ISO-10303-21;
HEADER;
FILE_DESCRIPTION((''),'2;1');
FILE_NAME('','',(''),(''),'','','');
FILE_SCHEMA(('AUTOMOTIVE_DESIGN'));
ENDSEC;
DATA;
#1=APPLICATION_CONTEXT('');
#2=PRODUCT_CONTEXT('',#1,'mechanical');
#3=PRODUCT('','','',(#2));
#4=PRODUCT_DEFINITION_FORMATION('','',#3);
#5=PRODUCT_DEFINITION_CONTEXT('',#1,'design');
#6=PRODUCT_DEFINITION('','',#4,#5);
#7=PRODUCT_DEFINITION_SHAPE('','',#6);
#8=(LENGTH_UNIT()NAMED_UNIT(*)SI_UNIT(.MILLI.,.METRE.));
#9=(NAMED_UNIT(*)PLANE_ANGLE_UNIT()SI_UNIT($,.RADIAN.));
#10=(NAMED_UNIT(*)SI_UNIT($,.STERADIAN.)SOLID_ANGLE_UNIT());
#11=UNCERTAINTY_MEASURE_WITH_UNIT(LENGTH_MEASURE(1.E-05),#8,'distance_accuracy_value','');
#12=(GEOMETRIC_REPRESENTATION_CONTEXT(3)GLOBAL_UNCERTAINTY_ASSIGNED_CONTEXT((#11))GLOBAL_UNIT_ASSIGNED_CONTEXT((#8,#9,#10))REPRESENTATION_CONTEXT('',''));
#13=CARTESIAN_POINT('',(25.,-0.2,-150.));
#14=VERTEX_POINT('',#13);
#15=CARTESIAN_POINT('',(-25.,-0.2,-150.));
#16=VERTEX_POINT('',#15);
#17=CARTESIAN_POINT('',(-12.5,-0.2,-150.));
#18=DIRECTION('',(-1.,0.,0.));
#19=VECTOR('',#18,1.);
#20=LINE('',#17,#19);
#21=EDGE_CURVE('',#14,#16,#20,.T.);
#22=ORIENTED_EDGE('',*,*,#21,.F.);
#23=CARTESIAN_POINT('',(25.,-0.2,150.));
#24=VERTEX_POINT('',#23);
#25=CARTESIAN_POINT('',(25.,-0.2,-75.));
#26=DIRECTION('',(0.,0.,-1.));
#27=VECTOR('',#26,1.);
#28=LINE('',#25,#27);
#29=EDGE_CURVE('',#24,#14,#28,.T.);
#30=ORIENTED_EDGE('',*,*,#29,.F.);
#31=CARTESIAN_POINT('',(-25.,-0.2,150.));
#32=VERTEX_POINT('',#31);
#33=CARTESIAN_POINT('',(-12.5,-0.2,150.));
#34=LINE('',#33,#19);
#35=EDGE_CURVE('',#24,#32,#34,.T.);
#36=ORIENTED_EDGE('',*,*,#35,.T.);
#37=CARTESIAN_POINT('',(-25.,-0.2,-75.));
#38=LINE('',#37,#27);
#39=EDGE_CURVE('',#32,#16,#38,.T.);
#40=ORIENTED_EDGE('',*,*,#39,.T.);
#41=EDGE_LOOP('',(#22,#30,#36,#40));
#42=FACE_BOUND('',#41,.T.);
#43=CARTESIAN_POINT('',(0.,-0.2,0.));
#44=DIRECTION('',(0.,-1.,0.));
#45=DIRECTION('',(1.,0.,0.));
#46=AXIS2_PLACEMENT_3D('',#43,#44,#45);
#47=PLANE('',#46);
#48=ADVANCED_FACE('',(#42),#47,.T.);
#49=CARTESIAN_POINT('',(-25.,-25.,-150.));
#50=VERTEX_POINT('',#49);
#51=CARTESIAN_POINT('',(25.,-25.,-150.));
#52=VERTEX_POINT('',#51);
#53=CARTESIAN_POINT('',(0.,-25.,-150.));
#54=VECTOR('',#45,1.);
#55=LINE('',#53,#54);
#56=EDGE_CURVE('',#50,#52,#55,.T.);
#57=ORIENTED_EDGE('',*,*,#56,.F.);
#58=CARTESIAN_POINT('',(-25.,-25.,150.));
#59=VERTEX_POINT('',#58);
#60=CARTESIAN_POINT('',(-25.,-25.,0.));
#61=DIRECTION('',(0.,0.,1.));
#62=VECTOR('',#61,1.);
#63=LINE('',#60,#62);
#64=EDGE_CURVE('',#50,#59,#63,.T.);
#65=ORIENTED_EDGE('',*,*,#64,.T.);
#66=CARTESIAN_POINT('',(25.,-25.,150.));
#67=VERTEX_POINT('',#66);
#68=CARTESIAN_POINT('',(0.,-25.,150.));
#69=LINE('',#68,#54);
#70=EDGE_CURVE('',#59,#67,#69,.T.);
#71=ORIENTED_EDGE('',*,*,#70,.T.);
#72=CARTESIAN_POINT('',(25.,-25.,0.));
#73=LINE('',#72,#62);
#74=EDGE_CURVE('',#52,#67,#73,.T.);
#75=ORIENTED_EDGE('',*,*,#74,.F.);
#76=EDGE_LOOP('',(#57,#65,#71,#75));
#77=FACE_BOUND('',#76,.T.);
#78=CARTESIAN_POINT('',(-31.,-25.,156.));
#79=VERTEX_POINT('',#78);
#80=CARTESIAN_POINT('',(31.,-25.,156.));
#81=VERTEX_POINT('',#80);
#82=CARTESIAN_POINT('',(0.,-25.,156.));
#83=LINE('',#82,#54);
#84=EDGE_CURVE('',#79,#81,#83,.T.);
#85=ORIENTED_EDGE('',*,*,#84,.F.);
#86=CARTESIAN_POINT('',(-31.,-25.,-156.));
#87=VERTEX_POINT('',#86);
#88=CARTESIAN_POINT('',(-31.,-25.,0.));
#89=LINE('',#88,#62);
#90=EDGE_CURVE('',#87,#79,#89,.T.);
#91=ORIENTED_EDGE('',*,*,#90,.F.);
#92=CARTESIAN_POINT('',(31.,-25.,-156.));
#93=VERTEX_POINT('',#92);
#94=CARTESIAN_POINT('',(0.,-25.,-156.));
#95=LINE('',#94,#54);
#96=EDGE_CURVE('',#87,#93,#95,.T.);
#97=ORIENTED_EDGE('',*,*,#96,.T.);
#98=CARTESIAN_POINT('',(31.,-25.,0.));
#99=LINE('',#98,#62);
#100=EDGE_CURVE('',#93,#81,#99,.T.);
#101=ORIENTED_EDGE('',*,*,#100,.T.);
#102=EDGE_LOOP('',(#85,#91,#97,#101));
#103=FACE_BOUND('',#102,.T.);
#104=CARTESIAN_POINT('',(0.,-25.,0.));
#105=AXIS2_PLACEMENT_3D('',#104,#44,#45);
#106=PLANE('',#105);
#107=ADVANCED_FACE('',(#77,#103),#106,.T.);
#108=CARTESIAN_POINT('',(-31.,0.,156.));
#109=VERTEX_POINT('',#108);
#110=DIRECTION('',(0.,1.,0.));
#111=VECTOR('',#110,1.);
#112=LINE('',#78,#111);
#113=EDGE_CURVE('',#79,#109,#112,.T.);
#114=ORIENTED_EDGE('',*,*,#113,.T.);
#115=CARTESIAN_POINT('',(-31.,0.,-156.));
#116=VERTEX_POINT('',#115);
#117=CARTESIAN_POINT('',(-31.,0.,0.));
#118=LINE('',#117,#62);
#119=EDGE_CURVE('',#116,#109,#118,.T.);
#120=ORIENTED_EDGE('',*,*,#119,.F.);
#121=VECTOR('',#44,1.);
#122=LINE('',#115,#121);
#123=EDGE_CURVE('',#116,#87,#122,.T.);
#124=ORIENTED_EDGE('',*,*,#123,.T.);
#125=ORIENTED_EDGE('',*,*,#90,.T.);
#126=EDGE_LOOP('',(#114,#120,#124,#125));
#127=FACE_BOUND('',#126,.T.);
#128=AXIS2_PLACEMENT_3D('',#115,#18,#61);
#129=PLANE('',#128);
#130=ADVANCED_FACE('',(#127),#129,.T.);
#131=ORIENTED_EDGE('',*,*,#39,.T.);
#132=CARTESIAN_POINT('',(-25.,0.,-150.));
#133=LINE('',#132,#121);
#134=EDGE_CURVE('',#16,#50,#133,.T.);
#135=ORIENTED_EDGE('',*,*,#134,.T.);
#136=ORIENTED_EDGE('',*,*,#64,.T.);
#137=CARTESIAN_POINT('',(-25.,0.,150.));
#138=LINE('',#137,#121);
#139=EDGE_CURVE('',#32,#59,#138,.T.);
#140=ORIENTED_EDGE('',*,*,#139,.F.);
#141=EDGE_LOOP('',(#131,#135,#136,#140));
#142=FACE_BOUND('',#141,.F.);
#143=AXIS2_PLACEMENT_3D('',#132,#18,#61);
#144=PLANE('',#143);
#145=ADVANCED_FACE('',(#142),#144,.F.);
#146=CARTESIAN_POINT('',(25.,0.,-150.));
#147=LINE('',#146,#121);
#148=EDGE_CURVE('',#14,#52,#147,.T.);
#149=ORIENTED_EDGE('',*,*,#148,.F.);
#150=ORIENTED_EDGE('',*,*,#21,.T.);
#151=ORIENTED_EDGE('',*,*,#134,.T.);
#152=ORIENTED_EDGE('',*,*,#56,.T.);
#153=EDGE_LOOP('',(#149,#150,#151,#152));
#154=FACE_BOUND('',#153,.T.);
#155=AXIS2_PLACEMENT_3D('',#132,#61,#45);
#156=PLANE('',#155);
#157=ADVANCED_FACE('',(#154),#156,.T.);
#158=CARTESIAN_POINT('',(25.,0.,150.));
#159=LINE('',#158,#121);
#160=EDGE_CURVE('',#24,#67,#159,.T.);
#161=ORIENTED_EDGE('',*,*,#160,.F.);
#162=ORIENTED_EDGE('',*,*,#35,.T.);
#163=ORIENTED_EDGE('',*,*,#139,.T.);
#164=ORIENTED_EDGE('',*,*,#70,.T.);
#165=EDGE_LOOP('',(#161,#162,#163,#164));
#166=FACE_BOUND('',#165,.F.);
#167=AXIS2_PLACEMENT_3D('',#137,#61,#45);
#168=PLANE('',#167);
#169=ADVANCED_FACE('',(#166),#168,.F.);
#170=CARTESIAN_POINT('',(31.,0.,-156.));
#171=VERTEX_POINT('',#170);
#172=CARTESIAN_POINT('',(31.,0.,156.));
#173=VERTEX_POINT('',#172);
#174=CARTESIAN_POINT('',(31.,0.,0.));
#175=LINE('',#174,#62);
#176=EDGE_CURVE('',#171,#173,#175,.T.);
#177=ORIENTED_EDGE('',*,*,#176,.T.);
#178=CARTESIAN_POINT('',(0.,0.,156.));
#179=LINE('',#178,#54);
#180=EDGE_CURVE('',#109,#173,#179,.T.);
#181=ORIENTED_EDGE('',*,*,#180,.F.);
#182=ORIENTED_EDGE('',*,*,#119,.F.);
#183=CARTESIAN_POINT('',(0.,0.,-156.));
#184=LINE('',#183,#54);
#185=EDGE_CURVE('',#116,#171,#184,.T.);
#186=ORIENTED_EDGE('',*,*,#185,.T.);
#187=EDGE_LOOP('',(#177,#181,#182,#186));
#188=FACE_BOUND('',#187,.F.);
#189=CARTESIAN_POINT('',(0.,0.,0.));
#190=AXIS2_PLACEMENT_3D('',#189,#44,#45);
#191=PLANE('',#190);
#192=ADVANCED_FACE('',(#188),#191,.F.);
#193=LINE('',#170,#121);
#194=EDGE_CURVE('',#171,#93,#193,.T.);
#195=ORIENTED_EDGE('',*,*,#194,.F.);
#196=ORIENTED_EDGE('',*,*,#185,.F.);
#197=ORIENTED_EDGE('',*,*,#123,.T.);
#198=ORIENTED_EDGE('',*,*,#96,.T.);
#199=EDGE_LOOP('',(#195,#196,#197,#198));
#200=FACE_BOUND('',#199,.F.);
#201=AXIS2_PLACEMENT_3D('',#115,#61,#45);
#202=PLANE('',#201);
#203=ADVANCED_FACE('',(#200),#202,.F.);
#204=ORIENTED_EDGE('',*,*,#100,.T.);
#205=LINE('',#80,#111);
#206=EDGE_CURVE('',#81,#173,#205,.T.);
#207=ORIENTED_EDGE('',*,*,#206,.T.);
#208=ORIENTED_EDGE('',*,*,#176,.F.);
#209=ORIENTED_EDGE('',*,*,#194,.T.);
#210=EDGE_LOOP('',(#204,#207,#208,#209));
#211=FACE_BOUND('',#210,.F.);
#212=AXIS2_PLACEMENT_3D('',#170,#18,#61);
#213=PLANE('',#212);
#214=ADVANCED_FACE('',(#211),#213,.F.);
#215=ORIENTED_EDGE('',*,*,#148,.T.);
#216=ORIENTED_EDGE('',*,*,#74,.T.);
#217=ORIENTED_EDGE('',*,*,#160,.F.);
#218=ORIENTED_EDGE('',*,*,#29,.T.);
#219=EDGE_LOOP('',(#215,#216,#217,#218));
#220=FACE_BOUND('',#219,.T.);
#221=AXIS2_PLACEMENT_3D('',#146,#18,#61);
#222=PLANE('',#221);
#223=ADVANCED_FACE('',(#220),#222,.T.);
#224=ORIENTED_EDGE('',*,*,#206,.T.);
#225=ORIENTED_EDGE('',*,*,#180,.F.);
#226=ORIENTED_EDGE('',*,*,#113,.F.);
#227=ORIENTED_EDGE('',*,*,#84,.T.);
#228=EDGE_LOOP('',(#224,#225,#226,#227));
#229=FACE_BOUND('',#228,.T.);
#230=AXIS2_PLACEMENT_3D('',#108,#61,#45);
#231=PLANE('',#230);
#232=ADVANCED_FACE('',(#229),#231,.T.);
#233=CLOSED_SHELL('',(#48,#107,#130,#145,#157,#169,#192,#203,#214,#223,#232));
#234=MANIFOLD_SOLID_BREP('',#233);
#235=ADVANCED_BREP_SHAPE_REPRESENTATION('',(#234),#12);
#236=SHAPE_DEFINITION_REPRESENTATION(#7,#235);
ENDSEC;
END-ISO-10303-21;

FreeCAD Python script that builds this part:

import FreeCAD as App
import Part
import Sketcher

V = App.Vector
Q = App.Units.Quantity


def add_polygon(sketch, points):
    """Adds a closed chain of lines whose ends are joined by coincident constraints."""
    first, n = sketch.GeometryCount, len(points)
    for a, b in zip(points, points[1:] + points[:1]):
        sketch.addGeometry(Part.LineSegment(App.Vector(*a, 0), App.Vector(*b, 0)), False)
    for i in range(n):
        sketch.addConstraint(Sketcher.Constraint("Coincident", first + i, 2, first + (i + 1) % n, 1))

doc = App.newDocument("Part")
body = doc.addObject("PartDesign::Body", "Body")

# Sketch on XZ plane
sketch1 = body.newObject("Sketcher::SketchObject", "Sketch")
sketch1.AttachmentSupport = (doc.getObject("XZ_Plane"), [""])
sketch1.MapMode = "FlatFace"
add_polygon(sketch1, [(-31, 156), (-31, -156), (31, -156), (31, 156)])  # lines 0-3
sketch1.addConstraint(Sketcher.Constraint("Vertical", 0))
sketch1.addConstraint(Sketcher.Constraint("Horizontal", 1))
sketch1.addConstraint(Sketcher.Constraint("Vertical", 2))
sketch1.addConstraint(Sketcher.Constraint("Horizontal", 3))
sketch1.addConstraint(Sketcher.Constraint("Symmetric", 0, 2, 2, 2, -1, 1))
sketch1.addConstraint(Sketcher.Constraint("DistanceX", 1, 1, 1, 2, Q("62 mm")))
sketch1.addConstraint(Sketcher.Constraint("DistanceY", 0, 2, 0, 1, Q("312 mm")))
pad1 = body.newObject("PartDesign::Pad", "Pad")
pad1.Profile = sketch1
pad1.Length = 0.2

# Sketch on XZ plane
sketch2 = body.newObject("Sketcher::SketchObject", "Sketch001")
sketch2.AttachmentSupport = (doc.getObject("XZ_Plane"), [""])
sketch2.MapMode = "FlatFace"
add_polygon(sketch2, [(-31, 156), (-31, -156), (31, -156), (31, 156)])  # lines 0-3
add_polygon(sketch2, [(25, -150), (-25, -150), (-25, 150), (25, 150)])  # lines 4-7
sketch2.addConstraint(Sketcher.Constraint("Vertical", 0))
sketch2.addConstraint(Sketcher.Constraint("Horizontal", 1))
sketch2.addConstraint(Sketcher.Constraint("Vertical", 2))
sketch2.addConstraint(Sketcher.Constraint("Horizontal", 3))
sketch2.addConstraint(Sketcher.Constraint("Horizontal", 4))
sketch2.addConstraint(Sketcher.Constraint("Vertical", 5))
sketch2.addConstraint(Sketcher.Constraint("Horizontal", 6))
sketch2.addConstraint(Sketcher.Constraint("Vertical", 7))
sketch2.addConstraint(Sketcher.Constraint("Symmetric", 0, 2, 2, 2, -1, 1))
sketch2.addConstraint(Sketcher.Constraint("Symmetric", 4, 2, 6, 2, -1, 1))
sketch2.addConstraint(Sketcher.Constraint("DistanceX", 1, 1, 1, 2, Q("62 mm")))
sketch2.addConstraint(Sketcher.Constraint("DistanceX", 4, 2, 4, 1, Q("50 mm")))
sketch2.addConstraint(Sketcher.Constraint("DistanceY", 0, 2, 0, 1, Q("312 mm")))
sketch2.addConstraint(Sketcher.Constraint("DistanceY", 5, 1, 5, 2, Q("300 mm")))
pad2 = body.newObject("PartDesign::Pad", "Pad001")
pad2.Profile = sketch2
pad2.Length = 25

doc.recompute()
